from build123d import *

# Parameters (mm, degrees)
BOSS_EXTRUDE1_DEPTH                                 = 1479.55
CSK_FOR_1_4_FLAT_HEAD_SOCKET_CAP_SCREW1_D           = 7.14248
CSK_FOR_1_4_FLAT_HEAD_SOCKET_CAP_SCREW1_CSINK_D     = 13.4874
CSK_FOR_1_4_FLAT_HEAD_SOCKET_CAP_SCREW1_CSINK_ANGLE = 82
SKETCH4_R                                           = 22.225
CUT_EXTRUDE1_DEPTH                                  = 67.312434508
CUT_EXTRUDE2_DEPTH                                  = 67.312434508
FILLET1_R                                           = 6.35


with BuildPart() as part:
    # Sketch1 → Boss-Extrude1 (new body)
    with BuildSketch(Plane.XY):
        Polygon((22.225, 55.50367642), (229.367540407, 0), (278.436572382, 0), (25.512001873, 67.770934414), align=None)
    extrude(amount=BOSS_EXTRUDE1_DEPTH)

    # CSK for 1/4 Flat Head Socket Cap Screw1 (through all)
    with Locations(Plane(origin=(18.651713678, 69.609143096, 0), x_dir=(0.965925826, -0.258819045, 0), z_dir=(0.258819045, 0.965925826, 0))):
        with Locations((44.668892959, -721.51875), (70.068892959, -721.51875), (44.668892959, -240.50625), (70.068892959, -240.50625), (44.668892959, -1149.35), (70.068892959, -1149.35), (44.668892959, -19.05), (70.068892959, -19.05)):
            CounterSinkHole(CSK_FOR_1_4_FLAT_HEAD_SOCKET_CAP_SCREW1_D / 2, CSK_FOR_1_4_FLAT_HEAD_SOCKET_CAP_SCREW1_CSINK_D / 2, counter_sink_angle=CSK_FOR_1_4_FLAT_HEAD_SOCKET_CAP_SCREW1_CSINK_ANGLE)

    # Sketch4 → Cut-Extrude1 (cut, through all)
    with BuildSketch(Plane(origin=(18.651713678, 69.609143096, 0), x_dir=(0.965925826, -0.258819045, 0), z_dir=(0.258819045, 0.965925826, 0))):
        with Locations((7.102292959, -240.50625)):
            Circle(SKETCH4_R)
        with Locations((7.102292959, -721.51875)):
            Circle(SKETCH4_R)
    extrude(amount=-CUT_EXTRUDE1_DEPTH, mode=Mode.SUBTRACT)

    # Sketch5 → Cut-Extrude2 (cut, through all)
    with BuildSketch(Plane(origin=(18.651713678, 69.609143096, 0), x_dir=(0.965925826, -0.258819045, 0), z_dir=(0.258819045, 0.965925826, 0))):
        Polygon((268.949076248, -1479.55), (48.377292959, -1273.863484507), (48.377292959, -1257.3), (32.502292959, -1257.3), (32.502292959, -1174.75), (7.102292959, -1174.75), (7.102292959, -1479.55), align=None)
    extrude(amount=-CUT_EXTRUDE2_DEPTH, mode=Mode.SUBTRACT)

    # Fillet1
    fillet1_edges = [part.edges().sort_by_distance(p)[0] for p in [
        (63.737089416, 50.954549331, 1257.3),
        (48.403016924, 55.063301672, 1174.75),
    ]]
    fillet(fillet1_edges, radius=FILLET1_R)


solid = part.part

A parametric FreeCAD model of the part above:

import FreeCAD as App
import Part
import Sketcher
from FreeCAD import Vector
Q = App.Units.Quantity


def edges_at(feature, points):
    """Names of the edges that pass closest to the given points."""
    edges = feature.Shape.Edges
    near = lambda p: min(range(len(edges)), key=lambda i: edges[i].distToShape(Part.Vertex(*p))[0])
    return sorted({f"Edge{near(p) + 1}" for p in points})

doc = App.newDocument("Part")
body = doc.addObject("PartDesign::Body", "Body")

# Sketch on XY plane
sketch1 = body.newObject("Sketcher::SketchObject", "Sketch")
sketch1.AttachmentSupport = (doc.getObject("XY_Plane"), [""])
sketch1.MapMode = "FlatFace"
sketch1.addGeometry([
    Part.LineSegment(Vector(22, 56, 0), Vector(229, 0, 0)),
    Part.LineSegment(Vector(229, 0, 0), Vector(278, 0, 0)),
    Part.LineSegment(Vector(278, 0, 0), Vector(26, 68, 0)),
    Part.LineSegment(Vector(26, 68, 0), Vector(22, 56, 0)),
], False)
sketch1.addConstraint([
    Sketcher.Constraint("Coincident", 0, 2, 1, 1),
    Sketcher.Constraint("Coincident", 1, 2, 2, 1),
    Sketcher.Constraint("Coincident", 2, 2, 3, 1),
    Sketcher.Constraint("Coincident", 3, 2, 0, 1),
    Sketcher.Constraint("Horizontal", 1),
    Sketcher.Constraint("PointOnObject", 0, 2, -1),
    Sketcher.Constraint("Parallel", 0, 2),
    Sketcher.Constraint("Perpendicular", 2, 3),
    Sketcher.Constraint("Angle", 0, Q("-15 deg")),
    Sketcher.Constraint("Distance", 3, Q("0.5 in")),
    Sketcher.Constraint("DistanceX", -1, 1, 3, 2, Q("0.875 in")),
    Sketcher.Constraint("Distance", 0, 214.449738),
])
pad1 = body.newObject("PartDesign::Pad", "Pad")
pad1.Profile = sketch1
pad1.Length = Q("58.25 in")

# Sketch on an angled plane
sketch2 = body.newObject("Sketcher::SketchObject", "Sketch001")
sketch2.Placement = App.Placement(Vector(18.651714, 69.609143, 0), App.Rotation(Vector(0.965925826, -0.258819045, 0), Vector(0, 0, -0.999999999), Vector(0.258819045, 0.965925826, 0), "ZXY"))
sketch2.addGeometry([
    Part.Circle(Vector(44.7, -721.5, 0), Vector(0, 0, 1), 3.6),  # 0
    Part.Circle(Vector(70.1, -721.5, 0), Vector(0, 0, 1), 3.6),  # 1
    Part.Circle(Vector(44.7, -240.5, 0), Vector(0, 0, 1), 3.6),  # 2
    Part.Circle(Vector(70.1, -240.5, 0), Vector(0, 0, 1), 3.6),  # 3
    Part.Circle(Vector(44.7, -1149.3, 0), Vector(0, 0, 1), 3.6),  # 4
    Part.Circle(Vector(70.1, -1149.3, 0), Vector(0, 0, 1), 3.6),  # 5
    Part.Circle(Vector(44.7, -19, 0), Vector(0, 0, 1), 3.6),  # 6
    Part.Circle(Vector(70.1, -19, 0), Vector(0, 0, 1), 3.6),  # 7
], False)
sketch2.addConstraint([
    Sketcher.Constraint("Equal", 0, 1),
    Sketcher.Constraint("Equal", 1, 2),
    Sketcher.Constraint("Equal", 2, 3),
    Sketcher.Constraint("Equal", 3, 4),
    Sketcher.Constraint("Equal", 4, 5),
    Sketcher.Constraint("Equal", 5, 6),
    Sketcher.Constraint("Equal", 6, 7),
    Sketcher.Constraint("Horizontal", 0, 3, 1, 3),
    Sketcher.Constraint("Horizontal", 2, 3, 3, 3),
    Sketcher.Constraint("Horizontal", 4, 3, 5, 3),
    Sketcher.Constraint("Horizontal", 6, 3, 7, 3),
    Sketcher.Constraint("Vertical", 0, 3, 2, 3),
    Sketcher.Constraint("Vertical", 1, 3, 3, 3),
    Sketcher.Constraint("Vertical", 2, 3, 4, 3),
    Sketcher.Constraint("Vertical", 3, 3, 5, 3),
    Sketcher.Constraint("Vertical", 4, 3, 6, 3),
    Sketcher.Constraint("Vertical", 5, 3, 7, 3),
    Sketcher.Constraint("DistanceX", 0, 3, 1, 3, Q("1 in")),
    Sketcher.Constraint("Diameter", 0, Q("0.2812 in")),
    Sketcher.Constraint("DistanceY", 4, 3, 6, 3, Q("44.4999999 in")),
    Sketcher.Constraint("DistanceY", 4, 3, -1, 1, Q("45.2499999 in")),
    Sketcher.Constraint("DistanceY", 0, 3, -1, 1, Q("28.40625 in")),
    Sketcher.Constraint("DistanceY", 2, 3, -1, 1, Q("9.46875 in")),
    Sketcher.Constraint("DistanceX", -1, 1, 0, 3, 44.668893),
])
doc.recompute()
hole = body.newObject("PartDesign::Hole", "Hole")
hole.Profile = sketch2
hole.ThreadType = "None"
hole.Diameter = Q("0.2812 in")
hole.DepthType = "ThroughAll"
hole.HoleCutType = "Countersink"
hole.HoleCutDiameter = Q("0.531 in")
hole.HoleCutCountersinkAngle = 82

# Sketch on an angled plane
sketch3 = body.newObject("Sketcher::SketchObject", "Sketch002")
sketch3.Placement = App.Placement(Vector(18.651714, 69.609143, 0), App.Rotation(Vector(0.965925826, -0.258819045, 0), Vector(0, 0, -0.999999999), Vector(0.258819045, 0.965925826, 0), "ZXY"))
sketch3.addGeometry([
    Part.Circle(Vector(7, -241, 0), Vector(0, 0, 1), 22),
    Part.Circle(Vector(7, -722, 0), Vector(0, 0, 1), 22),
], False)
sketch3.addConstraint([
    Sketcher.Constraint("Equal", 0, 1),
    Sketcher.Constraint("Vertical", 0, 3, 1, 3),
    Sketcher.Constraint("Diameter", 0, Q("1.75 in")),
    Sketcher.Constraint("DistanceY", 0, 3, -1, 1, Q("9.46875 in")),
    Sketcher.Constraint("DistanceY", 1, 3, -1, 1, Q("28.40625 in")),
    Sketcher.Constraint("DistanceX", -1, 1, 0, 3, 7.102293),
])
pocket1 = body.newObject("PartDesign::Pocket", "Pocket")
pocket1.Profile = sketch3
pocket1.Type = "ThroughAll"

# Sketch on an angled plane
sketch4 = body.newObject("Sketcher::SketchObject", "Sketch003")
sketch4.Placement = App.Placement(Vector(18.651714, 69.609143, 0), App.Rotation(Vector(0.965925826, -0.258819045, 0), Vector(0, 0, -0.999999999), Vector(0.258819045, 0.965925826, 0), "ZXY"))
sketch4.addGeometry([
    Part.LineSegment(Vector(269, -1480, 0), Vector(48, -1274, 0)),  # 0
    Part.LineSegment(Vector(48, -1274, 0), Vector(48, -1257, 0)),  # 1
    Part.LineSegment(Vector(48, -1257, 0), Vector(33, -1257, 0)),  # 2
    Part.LineSegment(Vector(33, -1257, 0), Vector(33, -1175, 0)),  # 3
    Part.LineSegment(Vector(33, -1175, 0), Vector(7, -1175, 0)),  # 4
    Part.LineSegment(Vector(7, -1175, 0), Vector(7, -1480, 0)),  # 5
    Part.LineSegment(Vector(7, -1480, 0), Vector(269, -1480, 0)),  # 6
], False)
sketch4.addConstraint([
    Sketcher.Constraint("Coincident", 0, 2, 1, 1),
    Sketcher.Constraint("Coincident", 1, 2, 2, 1),
    Sketcher.Constraint("Coincident", 2, 2, 3, 1),
    Sketcher.Constraint("Coincident", 3, 2, 4, 1),
    Sketcher.Constraint("Coincident", 4, 2, 5, 1),
    Sketcher.Constraint("Coincident", 5, 2, 6, 1),
    Sketcher.Constraint("Coincident", 6, 2, 0, 1),
    Sketcher.Constraint("Vertical", 1),
    Sketcher.Constraint("Horizontal", 2),
    Sketcher.Constraint("Vertical", 3),
    Sketcher.Constraint("Horizontal", 4),
    Sketcher.Constraint("Vertical", 5),
    Sketcher.Constraint("Horizontal", 6),
    Sketcher.Constraint("DistanceX", 4, 2, 4, 1, Q("1 in")),
    Sketcher.Constraint("DistanceY", 5, 2, 5, 1, Q("12 in")),
    Sketcher.Constraint("Angle", 0, Q("137 deg")),
    Sketcher.Constraint("DistanceY", 3, 1, 3, 2, Q("3.25 in")),
    Sketcher.Constraint("DistanceY", 1, 2, -1, 1, Q("49.4999999 in")),
    Sketcher.Constraint("DistanceX", 2, 2, 2, 1, Q("0.625 in")),
    Sketcher.Constraint("DistanceX", 6, 1, 6, 2, 261.846783),
    Sketcher.Constraint("DistanceX", -1, 1, 0, 2, 48.377293),
])
pocket2 = body.newObject("PartDesign::Pocket", "Pocket001")
pocket2.Profile = sketch4
pocket2.Type = "ThroughAll"
doc.recompute()

fillet = body.newObject("PartDesign::Fillet", "Fillet")
fillet.Base = (pocket2, edges_at(pocket2, [(63.737, 50.955, 1257.3), (48.403, 55.063, 1174.75)]))
fillet.Radius = Q("0.25 in")

doc.recompute()
